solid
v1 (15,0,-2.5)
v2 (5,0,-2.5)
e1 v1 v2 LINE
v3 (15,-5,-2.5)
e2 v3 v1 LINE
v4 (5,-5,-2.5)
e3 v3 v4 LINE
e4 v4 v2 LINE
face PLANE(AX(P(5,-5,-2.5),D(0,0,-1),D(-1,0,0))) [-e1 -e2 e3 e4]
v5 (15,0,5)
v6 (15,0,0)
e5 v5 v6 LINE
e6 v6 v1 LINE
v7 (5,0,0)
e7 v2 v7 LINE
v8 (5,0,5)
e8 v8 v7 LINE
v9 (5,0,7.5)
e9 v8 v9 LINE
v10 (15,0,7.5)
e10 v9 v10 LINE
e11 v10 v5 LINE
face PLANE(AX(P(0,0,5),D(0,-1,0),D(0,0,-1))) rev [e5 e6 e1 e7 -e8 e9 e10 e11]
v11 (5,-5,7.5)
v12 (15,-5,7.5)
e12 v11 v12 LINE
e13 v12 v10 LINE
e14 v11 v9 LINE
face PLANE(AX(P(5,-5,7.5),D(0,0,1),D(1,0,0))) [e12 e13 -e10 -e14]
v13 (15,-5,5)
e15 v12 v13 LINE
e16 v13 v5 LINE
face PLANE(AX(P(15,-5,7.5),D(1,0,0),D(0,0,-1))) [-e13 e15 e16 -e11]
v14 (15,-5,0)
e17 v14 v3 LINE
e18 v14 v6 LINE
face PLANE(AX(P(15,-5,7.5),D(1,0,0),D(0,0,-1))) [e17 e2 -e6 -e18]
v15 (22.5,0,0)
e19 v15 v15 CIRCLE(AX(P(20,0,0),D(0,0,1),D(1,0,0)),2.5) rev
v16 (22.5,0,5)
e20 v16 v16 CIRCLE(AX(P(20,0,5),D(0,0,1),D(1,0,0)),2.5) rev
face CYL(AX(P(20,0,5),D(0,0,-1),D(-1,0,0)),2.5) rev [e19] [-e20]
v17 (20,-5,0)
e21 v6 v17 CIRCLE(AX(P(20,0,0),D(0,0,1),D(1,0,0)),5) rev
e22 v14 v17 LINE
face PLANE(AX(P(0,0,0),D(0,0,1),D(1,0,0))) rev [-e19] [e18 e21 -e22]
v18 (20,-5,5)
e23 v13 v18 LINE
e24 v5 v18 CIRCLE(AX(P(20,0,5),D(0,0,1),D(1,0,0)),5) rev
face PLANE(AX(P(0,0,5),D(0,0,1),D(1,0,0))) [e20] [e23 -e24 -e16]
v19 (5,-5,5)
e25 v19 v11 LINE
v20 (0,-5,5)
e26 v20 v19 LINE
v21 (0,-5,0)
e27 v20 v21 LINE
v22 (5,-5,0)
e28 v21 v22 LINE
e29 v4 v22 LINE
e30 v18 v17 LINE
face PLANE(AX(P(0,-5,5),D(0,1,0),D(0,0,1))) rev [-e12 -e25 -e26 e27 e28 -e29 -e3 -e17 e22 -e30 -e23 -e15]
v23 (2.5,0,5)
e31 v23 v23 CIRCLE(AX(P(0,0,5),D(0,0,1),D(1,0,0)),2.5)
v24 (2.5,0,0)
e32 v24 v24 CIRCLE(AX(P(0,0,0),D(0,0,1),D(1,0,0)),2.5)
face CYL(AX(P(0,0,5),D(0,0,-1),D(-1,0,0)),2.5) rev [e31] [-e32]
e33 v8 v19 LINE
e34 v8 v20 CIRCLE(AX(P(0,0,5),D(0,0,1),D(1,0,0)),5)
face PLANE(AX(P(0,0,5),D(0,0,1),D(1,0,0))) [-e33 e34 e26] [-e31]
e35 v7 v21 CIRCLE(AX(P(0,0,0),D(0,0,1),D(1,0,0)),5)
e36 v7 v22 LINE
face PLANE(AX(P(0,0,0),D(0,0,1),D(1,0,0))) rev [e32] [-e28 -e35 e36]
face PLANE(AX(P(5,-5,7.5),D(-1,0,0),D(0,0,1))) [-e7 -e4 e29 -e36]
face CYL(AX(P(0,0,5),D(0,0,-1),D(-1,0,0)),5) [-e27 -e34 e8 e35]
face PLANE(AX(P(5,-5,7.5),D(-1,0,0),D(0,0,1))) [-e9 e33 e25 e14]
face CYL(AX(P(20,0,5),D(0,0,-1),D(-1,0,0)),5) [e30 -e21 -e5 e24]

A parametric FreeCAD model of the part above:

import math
import FreeCAD as App
import Part
import Sketcher

V = App.Vector

doc = App.newDocument("Part")
body = doc.addObject("PartDesign::Body", "Body")

# Sketch on XY plane
sketch1 = body.newObject("Sketcher::SketchObject", "Sketch")
sketch1.AttachmentSupport = (doc.getObject("XY_Plane"), [""])
sketch1.MapMode = "FlatFace"
sketch1.addGeometry([
    Part.ArcOfCircle(Part.Circle(V(0, 0, 0), V(0, 0, 1), 5), math.radians(0), math.radians(270)),  # 0
    Part.LineSegment(V(0, -5, 0), V(20, -5, 0)),  # 1
    Part.ArcOfCircle(Part.Circle(V(20, 0, 0), V(0, 0, 1), 5), math.radians(-90), math.radians(180)),  # 2
    Part.LineSegment(V(15, 0, 0), V(5, 0, 0)),  # 3
    Part.Circle(V(0, 0, 0), V(0, 0, 1), 2.5),  # 4
    Part.Circle(V(20, 0, 0), V(0, 0, 1), 2.5),  # 5
], False)
sketch1.addConstraint([
    Sketcher.Constraint("Tangent", 0, 2, 1, 1),
    Sketcher.Constraint("Tangent", 1, 2, 2, 1),
    Sketcher.Constraint("Coincident", 2, 2, 3, 1),
    Sketcher.Constraint("Coincident", 3, 2, 0, 1),
    Sketcher.Constraint("Horizontal", 1),
    Sketcher.Constraint("Horizontal", 3),
    Sketcher.Constraint("Coincident", 0, 3, -1, 1),
    Sketcher.Constraint("Coincident", 4, 3, -1, 1),
    Sketcher.Constraint("Coincident", 5, 3, 2, 3),
    Sketcher.Constraint("Equal", 0, 2),
    Sketcher.Constraint("Equal", 4, 5),
    Sketcher.Constraint("PointOnObject", 2, 2, -1),
    Sketcher.Constraint("Diameter", 4, 5.0),
    Sketcher.Constraint("Radius", 0, 5.0),
    Sketcher.Constraint("DistanceX", 1, 1, 1, 2, 20.0),
])
pad1 = body.newObject("PartDesign::Pad", "Pad")
pad1.Profile = sketch1
pad1.Length = 5

# Sketch on XZ plane
sketch2 = body.newObject("Sketcher::SketchObject", "Sketch001")
sketch2.AttachmentSupport = (doc.getObject("XZ_Plane"), [""])
sketch2.MapMode = "FlatFace"
sketch2.addGeometry([
    Part.LineSegment(V(5, -2, 0), V(5, 8, 0)),
    Part.LineSegment(V(5, 8, 0), V(15, 8, 0)),
    Part.LineSegment(V(15, 8, 0), V(15, -2, 0)),
    Part.LineSegment(V(15, -2, 0), V(5, -2, 0)),
], False)
sketch2.addConstraint([
    Sketcher.Constraint("Coincident", 0, 2, 1, 1),
    Sketcher.Constraint("Coincident", 1, 2, 2, 1),
    Sketcher.Constraint("Coincident", 2, 2, 3, 1),
    Sketcher.Constraint("Coincident", 3, 2, 0, 1),
    Sketcher.Constraint("Vertical", 0),
    Sketcher.Constraint("Horizontal", 1),
    Sketcher.Constraint("Vertical", 2),
    Sketcher.Constraint("Horizontal", 3),
    Sketcher.Constraint("Equal", 3, 0),
    Sketcher.Constraint("DistanceX", 1, 1, 1, 2, 10.0),
    Sketcher.Constraint("DistanceX", -1, 1, 0, 2, 5.0),
    Sketcher.Constraint("DistanceY", -1, 1, 0, 2, 7.5),
])
pad2 = body.newObject("PartDesign::Pad", "Pad001")
pad2.Profile = sketch2
pad2.Length = 5

doc.recompute()
